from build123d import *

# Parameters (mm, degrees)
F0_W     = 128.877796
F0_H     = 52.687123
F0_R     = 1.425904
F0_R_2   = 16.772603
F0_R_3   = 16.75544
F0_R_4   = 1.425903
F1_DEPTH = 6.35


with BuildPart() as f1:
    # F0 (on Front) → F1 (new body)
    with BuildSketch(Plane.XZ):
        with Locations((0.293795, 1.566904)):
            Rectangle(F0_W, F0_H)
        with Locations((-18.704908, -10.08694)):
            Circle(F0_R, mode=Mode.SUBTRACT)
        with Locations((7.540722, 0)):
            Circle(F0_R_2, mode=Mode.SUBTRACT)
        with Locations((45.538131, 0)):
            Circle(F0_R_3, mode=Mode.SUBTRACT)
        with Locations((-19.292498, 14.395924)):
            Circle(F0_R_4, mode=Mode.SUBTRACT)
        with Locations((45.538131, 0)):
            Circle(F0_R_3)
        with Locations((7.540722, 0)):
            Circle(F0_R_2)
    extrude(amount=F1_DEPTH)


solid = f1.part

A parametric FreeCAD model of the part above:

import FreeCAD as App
import Part
import Sketcher
Q = App.Units.Quantity


def add_polygon(sketch, points):
    """Adds a closed chain of lines whose ends are joined by coincident constraints."""
    first, n = sketch.GeometryCount, len(points)
    for a, b in zip(points, points[1:] + points[:1]):
        sketch.addGeometry(Part.LineSegment(App.Vector(*a, 0), App.Vector(*b, 0)), False)
    for i in range(n):
        sketch.addConstraint(Sketcher.Constraint("Coincident", first + i, 2, first + (i + 1) % n, 1))

doc = App.newDocument("Part")
body = doc.addObject("PartDesign::Body", "Body")

# Sketch on XZ plane
sketch1 = body.newObject("Sketcher::SketchObject", "Sketch")
sketch1.AttachmentSupport = (doc.getObject("XZ_Plane"), [""])
sketch1.MapMode = "FlatFace"
add_polygon(sketch1, [(-64.145103, 27.910466), (-64.145103, -24.776657), (64.732693, -24.776657), (64.732693, 27.910466)])  # lines 0-3
sketch1.addGeometry(Part.Circle(App.Vector(-18.704908, -10.08694, 0), App.Vector(0, 0, 1), 1.425904), False)  # 4
sketch1.addGeometry(Part.Circle(App.Vector(-19.292498, 14.395924, 0), App.Vector(0, 0, 1), 1.425903), False)  # 5
sketch1.addConstraint(Sketcher.Constraint("Vertical", 0))
sketch1.addConstraint(Sketcher.Constraint("Horizontal", 1))
sketch1.addConstraint(Sketcher.Constraint("Vertical", 2))
sketch1.addConstraint(Sketcher.Constraint("Horizontal", 3))
sketch1.addConstraint(Sketcher.Constraint("Equal", 4, 5))
sketch1.addConstraint(Sketcher.Constraint("Diameter", 4, Q("2.851808 mm")))
sketch1.addConstraint(Sketcher.Constraint("DistanceX", 4, 3, 1, 2, Q("83.437601 mm")))
sketch1.addConstraint(Sketcher.Constraint("DistanceX", 1, 1, 1, 2, Q("128.877796 mm")))
sketch1.addConstraint(Sketcher.Constraint("DistanceY", 0, 2, 0, 1, Q("52.687123 mm")))
sketch1.addConstraint(Sketcher.Constraint("DistanceY", 4, 3, -1, 1, Q("10.08694 mm")))
sketch1.addConstraint(Sketcher.Constraint("DistanceX", 5, 3, 4, 3, Q("0.58759 mm")))
sketch1.addConstraint(Sketcher.Constraint("DistanceY", 0, 2, 5, 3, Q("39.172581 mm")))
sketch1.addConstraint(Sketcher.Constraint("DistanceX", 4, 3, -1, 1, Q("18.704908 mm")))
sketch1.addConstraint(Sketcher.Constraint("DistanceY", -1, 1, 5, 3, Q("14.395924 mm")))
pad1 = body.newObject("PartDesign::Pad", "Pad")
pad1.Profile = sketch1
pad1.Length = Q("0.25 in")

doc.recompute()
